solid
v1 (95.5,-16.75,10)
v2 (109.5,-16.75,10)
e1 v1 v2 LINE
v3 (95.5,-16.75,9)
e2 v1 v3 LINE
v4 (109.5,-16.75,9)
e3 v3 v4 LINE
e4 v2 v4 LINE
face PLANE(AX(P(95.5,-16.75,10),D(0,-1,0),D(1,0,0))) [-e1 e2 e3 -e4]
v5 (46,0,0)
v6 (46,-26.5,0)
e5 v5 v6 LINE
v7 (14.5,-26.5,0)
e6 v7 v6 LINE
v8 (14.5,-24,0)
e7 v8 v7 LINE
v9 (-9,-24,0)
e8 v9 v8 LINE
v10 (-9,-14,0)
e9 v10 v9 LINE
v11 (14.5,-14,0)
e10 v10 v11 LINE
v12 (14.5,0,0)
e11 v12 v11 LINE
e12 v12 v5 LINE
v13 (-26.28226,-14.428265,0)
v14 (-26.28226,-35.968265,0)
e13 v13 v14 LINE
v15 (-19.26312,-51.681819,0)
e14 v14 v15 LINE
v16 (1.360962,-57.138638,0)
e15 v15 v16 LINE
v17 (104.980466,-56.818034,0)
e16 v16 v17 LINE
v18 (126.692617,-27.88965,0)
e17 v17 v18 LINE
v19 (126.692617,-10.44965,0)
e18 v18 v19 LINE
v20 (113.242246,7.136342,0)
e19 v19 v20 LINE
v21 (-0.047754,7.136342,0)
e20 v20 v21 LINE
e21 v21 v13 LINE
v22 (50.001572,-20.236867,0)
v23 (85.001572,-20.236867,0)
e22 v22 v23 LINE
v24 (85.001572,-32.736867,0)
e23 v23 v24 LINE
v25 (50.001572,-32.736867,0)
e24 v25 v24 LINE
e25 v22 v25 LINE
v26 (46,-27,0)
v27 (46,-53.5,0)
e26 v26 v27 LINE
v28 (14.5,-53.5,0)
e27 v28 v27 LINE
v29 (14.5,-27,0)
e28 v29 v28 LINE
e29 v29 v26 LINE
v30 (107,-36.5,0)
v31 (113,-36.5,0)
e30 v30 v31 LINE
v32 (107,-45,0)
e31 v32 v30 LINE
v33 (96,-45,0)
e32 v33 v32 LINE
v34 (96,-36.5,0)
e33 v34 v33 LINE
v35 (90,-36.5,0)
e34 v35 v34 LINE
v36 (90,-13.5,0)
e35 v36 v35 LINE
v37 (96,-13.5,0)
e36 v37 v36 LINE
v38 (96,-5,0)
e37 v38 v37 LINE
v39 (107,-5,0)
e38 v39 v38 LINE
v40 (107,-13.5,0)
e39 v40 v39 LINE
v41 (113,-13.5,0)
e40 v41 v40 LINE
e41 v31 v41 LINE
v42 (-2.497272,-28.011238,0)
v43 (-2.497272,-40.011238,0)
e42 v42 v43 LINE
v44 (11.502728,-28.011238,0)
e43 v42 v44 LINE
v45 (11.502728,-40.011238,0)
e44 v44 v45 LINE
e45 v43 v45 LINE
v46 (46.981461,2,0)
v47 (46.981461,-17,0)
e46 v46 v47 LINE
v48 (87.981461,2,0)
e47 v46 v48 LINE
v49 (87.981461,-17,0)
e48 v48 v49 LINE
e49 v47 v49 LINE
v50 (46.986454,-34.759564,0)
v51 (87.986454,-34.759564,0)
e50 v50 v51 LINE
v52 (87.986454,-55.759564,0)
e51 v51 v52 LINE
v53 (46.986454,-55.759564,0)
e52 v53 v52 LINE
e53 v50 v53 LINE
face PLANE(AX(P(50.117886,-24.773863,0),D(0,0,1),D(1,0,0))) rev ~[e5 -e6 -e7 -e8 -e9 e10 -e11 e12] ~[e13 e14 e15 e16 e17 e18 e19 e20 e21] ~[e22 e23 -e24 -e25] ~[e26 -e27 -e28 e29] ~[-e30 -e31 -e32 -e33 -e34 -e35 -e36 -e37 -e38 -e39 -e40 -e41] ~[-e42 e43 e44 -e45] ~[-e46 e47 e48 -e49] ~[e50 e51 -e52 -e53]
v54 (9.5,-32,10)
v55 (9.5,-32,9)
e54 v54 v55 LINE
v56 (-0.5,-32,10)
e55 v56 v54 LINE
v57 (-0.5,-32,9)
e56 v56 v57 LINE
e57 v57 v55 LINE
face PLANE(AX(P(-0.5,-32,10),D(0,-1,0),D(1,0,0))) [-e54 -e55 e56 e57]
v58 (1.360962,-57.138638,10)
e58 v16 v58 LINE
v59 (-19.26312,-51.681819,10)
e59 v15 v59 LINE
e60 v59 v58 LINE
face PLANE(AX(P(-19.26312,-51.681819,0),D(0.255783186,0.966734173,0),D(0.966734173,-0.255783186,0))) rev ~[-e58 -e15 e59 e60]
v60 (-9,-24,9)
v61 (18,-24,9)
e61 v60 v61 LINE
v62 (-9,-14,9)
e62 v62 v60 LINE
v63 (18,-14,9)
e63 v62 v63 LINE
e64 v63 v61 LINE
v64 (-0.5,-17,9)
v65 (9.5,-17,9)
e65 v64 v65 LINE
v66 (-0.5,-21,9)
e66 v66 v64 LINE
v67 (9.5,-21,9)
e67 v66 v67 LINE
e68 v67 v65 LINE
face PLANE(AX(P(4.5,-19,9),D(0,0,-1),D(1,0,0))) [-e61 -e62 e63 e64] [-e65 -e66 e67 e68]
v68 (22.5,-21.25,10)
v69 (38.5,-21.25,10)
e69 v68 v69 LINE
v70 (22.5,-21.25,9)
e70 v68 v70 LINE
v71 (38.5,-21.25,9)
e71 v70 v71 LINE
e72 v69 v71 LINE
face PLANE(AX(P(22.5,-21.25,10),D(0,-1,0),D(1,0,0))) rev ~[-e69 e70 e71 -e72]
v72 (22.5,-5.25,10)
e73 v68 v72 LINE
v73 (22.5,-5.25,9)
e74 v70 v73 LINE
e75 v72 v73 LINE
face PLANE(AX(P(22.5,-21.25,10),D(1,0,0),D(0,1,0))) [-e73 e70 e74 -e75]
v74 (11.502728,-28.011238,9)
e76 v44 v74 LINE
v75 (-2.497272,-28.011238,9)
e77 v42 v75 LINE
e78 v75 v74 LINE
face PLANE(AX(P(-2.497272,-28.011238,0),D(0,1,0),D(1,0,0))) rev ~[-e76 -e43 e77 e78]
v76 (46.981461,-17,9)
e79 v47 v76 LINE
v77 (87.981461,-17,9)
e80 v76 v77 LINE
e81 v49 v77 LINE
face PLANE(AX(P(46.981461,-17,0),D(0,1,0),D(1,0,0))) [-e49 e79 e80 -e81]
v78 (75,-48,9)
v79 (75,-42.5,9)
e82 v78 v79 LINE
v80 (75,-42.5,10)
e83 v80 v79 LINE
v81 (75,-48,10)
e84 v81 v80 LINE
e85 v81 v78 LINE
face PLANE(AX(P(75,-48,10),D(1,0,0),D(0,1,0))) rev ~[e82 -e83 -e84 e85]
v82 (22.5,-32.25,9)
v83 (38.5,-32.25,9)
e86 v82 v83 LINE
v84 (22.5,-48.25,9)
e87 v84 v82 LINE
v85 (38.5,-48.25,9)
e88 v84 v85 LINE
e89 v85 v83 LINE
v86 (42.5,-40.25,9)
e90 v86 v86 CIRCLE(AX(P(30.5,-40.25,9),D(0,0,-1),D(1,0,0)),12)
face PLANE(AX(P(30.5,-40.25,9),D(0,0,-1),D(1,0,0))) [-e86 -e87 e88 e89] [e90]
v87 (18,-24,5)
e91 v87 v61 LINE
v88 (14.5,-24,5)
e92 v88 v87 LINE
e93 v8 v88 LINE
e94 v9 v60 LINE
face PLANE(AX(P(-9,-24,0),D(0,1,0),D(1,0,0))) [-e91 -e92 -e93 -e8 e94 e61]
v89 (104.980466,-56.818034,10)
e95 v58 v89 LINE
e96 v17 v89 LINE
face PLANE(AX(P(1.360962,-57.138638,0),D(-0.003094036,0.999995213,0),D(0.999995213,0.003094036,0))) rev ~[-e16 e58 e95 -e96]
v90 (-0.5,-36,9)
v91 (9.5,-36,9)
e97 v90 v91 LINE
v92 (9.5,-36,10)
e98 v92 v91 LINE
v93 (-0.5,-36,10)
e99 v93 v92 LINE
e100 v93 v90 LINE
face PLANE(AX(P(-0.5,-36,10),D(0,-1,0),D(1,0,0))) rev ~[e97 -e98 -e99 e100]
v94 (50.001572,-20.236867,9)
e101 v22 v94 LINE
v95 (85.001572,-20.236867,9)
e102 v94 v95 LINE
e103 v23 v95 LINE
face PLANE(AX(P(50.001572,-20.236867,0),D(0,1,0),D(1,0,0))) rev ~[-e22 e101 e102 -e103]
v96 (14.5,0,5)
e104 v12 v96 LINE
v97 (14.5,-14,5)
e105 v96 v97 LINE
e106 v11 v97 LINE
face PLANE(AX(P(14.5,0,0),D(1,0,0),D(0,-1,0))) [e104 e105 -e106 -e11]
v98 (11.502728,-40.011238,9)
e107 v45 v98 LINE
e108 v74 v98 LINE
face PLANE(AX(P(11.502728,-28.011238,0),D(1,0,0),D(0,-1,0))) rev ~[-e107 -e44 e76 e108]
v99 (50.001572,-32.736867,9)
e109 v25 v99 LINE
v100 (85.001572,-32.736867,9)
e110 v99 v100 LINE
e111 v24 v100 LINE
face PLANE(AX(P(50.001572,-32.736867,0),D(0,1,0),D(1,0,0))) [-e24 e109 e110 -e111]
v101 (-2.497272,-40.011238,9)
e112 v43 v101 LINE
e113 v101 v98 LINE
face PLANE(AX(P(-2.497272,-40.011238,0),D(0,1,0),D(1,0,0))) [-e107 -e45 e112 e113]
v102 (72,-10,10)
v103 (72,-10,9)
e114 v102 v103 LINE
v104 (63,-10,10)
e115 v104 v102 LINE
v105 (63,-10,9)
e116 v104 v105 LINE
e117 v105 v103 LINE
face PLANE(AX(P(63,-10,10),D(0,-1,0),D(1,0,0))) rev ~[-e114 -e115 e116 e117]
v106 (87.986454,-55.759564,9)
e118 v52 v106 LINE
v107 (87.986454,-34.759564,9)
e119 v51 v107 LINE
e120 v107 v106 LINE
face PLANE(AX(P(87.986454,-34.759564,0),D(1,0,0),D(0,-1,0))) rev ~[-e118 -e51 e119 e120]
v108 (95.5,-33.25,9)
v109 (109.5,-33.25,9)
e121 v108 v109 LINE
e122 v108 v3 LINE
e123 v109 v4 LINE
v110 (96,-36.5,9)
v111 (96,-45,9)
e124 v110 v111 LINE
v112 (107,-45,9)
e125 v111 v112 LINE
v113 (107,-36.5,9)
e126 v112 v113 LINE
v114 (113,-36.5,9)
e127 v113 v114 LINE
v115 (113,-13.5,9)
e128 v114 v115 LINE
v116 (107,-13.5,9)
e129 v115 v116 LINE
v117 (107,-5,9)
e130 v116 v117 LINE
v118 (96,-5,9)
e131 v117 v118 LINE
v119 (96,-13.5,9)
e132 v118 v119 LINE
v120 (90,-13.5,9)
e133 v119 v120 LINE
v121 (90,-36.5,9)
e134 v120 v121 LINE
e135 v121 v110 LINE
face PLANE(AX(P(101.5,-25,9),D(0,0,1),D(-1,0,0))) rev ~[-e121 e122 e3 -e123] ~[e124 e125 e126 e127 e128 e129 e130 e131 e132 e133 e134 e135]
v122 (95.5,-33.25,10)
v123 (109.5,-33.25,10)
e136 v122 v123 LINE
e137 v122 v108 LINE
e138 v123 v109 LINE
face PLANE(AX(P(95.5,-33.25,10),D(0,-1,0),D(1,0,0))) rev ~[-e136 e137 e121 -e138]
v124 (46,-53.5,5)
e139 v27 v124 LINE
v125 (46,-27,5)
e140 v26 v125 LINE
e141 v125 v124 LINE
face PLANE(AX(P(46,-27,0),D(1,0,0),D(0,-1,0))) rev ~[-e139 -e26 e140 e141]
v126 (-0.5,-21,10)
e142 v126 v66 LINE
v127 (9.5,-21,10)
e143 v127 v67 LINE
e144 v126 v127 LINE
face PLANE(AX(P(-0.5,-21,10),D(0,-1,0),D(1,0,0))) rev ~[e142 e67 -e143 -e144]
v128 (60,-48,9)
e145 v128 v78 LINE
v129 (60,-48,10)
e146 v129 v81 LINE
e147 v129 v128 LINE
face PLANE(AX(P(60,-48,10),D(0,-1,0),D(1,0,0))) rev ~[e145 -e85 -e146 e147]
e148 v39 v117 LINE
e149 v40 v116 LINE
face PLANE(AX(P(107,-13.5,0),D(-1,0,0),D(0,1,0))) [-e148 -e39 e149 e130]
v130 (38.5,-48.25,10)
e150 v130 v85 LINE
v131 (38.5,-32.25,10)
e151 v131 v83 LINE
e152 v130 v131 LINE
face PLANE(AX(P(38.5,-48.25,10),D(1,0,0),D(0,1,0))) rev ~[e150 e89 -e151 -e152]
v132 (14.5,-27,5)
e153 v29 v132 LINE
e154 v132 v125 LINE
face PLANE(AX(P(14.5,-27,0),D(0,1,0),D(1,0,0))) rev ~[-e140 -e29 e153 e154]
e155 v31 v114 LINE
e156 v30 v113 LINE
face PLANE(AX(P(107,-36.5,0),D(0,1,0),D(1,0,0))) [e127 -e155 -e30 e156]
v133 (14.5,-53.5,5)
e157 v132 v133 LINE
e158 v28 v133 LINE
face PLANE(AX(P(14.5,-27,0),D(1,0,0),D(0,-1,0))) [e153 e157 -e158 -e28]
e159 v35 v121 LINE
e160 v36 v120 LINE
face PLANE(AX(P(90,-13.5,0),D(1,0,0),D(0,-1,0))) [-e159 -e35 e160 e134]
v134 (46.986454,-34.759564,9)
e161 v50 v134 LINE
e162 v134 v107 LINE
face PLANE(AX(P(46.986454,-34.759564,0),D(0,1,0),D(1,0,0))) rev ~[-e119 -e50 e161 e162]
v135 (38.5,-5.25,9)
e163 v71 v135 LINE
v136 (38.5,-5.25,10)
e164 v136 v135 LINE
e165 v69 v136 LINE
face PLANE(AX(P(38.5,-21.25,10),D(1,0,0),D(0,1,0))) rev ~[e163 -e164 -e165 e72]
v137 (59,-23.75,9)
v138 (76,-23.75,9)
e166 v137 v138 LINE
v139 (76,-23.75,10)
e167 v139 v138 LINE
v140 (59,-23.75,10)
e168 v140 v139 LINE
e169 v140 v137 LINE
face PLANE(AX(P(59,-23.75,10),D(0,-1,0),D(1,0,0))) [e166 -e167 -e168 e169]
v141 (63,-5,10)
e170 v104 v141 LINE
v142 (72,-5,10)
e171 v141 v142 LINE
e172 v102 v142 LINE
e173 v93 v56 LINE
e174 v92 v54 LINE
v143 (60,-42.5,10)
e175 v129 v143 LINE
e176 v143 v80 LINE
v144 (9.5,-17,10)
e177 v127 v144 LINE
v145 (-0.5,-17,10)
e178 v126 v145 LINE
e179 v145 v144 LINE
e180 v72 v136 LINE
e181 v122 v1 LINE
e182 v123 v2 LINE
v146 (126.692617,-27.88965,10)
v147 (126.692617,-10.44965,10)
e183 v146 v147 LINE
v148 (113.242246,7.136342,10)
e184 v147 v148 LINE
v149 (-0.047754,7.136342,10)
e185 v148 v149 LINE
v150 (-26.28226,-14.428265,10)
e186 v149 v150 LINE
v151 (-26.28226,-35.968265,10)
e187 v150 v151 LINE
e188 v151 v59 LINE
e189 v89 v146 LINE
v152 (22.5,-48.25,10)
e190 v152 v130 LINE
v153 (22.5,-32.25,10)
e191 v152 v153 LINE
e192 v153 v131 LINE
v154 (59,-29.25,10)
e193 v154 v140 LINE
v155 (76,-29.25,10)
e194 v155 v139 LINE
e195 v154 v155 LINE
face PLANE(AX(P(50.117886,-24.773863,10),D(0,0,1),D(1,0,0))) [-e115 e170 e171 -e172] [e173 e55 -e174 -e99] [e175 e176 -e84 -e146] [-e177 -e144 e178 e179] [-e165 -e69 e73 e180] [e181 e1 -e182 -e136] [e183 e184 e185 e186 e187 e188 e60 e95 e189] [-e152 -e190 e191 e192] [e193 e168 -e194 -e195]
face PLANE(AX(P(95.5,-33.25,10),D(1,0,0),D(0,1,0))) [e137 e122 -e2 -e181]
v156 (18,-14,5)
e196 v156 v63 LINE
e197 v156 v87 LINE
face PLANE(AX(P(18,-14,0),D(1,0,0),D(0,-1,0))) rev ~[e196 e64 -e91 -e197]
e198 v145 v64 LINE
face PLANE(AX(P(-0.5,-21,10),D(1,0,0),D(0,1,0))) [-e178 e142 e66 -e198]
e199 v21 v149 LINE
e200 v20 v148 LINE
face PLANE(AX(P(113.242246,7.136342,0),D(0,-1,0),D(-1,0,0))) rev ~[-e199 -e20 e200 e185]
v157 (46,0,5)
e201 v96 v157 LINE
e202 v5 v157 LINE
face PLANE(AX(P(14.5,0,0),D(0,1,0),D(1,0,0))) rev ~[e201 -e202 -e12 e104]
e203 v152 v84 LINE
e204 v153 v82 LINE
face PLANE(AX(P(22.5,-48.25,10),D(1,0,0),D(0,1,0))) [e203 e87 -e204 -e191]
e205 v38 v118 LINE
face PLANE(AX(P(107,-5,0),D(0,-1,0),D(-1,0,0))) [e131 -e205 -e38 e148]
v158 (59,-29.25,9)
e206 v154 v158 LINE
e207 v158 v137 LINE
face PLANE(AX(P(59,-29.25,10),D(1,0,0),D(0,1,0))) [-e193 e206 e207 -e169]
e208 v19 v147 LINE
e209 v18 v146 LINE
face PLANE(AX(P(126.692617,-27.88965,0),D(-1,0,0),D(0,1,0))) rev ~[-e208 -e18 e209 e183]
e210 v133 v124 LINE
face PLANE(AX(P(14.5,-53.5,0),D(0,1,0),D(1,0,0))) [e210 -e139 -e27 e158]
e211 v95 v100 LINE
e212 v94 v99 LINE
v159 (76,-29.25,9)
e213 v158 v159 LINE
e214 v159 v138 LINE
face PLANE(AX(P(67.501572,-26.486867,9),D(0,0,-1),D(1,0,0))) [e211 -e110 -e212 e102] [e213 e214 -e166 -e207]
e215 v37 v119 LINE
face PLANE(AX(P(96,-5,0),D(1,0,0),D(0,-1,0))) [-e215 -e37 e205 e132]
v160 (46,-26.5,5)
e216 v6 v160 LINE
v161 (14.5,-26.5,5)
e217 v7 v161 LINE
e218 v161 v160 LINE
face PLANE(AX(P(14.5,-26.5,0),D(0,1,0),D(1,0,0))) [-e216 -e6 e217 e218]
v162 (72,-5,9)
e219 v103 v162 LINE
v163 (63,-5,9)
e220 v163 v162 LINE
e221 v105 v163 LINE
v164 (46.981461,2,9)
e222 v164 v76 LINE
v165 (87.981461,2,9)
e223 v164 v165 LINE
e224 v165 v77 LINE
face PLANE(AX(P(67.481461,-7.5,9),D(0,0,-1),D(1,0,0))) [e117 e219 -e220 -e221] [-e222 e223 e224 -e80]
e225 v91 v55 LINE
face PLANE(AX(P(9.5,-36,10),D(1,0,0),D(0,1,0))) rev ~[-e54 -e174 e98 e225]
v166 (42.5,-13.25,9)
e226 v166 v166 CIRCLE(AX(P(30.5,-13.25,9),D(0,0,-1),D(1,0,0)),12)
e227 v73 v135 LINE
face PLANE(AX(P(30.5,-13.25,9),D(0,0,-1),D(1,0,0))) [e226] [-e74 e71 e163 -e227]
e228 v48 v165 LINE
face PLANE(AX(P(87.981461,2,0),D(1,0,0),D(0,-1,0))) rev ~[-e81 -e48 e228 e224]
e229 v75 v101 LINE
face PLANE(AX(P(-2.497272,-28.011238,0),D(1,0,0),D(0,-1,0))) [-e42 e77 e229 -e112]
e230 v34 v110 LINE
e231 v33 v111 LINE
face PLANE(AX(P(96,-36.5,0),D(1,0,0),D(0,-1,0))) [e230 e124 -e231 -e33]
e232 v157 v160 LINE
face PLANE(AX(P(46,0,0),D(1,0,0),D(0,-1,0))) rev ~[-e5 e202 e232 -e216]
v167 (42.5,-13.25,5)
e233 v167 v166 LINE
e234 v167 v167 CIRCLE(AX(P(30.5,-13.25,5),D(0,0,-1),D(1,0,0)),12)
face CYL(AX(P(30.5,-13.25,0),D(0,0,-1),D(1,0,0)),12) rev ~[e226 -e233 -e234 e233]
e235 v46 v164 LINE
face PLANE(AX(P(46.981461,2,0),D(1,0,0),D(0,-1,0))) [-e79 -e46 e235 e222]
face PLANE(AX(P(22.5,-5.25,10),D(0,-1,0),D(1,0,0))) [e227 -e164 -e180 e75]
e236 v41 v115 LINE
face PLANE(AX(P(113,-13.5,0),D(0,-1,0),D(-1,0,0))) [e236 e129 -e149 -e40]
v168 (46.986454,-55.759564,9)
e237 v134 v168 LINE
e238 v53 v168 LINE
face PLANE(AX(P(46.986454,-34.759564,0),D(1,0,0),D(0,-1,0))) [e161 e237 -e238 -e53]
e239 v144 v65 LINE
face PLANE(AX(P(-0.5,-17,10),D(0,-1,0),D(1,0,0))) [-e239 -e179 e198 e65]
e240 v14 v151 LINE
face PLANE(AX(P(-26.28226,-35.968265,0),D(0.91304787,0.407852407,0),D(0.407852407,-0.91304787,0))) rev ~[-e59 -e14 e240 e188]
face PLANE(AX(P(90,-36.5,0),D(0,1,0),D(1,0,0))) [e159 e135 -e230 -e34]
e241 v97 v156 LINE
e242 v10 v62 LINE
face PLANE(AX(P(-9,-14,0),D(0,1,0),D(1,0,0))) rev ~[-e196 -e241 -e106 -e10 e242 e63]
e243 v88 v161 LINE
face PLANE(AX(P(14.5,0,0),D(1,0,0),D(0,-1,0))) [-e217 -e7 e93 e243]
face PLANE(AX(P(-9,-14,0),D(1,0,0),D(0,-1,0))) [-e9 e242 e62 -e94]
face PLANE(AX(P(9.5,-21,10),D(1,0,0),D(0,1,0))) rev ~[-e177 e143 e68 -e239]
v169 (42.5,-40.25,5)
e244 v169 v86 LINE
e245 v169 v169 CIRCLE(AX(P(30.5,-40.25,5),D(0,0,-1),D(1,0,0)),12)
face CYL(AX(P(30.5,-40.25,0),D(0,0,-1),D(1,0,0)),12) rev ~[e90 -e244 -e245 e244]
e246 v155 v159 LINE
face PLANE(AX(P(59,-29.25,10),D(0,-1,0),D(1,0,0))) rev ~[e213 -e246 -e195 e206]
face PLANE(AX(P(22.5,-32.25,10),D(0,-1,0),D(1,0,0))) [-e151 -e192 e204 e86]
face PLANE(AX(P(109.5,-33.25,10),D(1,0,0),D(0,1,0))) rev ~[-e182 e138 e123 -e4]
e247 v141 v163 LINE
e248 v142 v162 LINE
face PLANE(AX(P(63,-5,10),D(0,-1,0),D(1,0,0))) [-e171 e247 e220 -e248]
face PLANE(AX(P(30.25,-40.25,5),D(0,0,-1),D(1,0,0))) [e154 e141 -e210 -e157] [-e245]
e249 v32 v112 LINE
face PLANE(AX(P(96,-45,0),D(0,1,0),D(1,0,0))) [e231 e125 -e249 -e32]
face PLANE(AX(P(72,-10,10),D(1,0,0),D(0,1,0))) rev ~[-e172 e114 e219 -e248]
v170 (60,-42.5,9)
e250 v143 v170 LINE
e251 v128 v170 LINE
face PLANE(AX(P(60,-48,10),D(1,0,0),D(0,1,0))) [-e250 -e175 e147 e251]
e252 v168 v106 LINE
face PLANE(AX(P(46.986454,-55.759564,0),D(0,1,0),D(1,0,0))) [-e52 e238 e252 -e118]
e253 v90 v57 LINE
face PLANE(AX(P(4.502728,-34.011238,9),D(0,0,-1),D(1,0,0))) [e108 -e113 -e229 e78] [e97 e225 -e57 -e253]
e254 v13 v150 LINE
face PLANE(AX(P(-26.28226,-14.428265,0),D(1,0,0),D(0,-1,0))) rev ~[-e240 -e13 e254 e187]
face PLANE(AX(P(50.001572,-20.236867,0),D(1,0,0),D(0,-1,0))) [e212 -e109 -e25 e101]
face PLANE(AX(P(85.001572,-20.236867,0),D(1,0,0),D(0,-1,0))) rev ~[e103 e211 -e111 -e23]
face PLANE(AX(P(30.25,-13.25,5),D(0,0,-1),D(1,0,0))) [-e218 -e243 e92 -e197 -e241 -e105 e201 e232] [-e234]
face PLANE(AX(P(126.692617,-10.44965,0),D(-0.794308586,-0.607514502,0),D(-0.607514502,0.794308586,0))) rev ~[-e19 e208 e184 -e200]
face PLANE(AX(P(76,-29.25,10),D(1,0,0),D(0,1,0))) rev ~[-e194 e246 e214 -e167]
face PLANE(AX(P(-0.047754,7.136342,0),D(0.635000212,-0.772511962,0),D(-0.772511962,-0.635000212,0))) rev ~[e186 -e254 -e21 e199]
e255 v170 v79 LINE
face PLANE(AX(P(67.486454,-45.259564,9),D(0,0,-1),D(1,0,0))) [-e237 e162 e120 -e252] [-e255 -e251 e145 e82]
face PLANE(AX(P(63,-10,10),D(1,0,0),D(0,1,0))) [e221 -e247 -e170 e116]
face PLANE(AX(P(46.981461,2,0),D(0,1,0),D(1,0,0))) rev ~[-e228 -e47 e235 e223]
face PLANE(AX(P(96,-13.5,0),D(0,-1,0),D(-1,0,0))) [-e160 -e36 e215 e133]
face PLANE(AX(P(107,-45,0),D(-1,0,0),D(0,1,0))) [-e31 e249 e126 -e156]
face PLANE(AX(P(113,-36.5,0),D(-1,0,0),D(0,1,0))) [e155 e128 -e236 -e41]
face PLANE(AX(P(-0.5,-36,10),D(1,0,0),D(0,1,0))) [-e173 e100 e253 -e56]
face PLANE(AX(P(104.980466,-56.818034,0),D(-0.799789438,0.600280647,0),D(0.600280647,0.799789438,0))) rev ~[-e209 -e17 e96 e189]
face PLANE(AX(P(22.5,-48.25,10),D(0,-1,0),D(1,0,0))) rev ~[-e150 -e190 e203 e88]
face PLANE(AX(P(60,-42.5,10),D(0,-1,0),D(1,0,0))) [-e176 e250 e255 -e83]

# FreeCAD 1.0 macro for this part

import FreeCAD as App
import Part
import Sketcher
from FreeCAD import Vector
Q = App.Units.Quantity

doc = App.newDocument("Part")
params = doc.addObject("Spreadsheet::Sheet", "Params")
for row, (alias, value) in enumerate([
    ("sketch1_width", "113.29 mm"),
    ("sketch1_height", "21.54 mm"),
    ("sketch1_height2", "17.44 mm"),
    ("sketch1_length", "33.96 mm"),
    ("sketch1_length2", "17.21 mm"),
    ("pad1_length", "10 mm"),
    ("sketch2_width", "10 mm"),
    ("sketch2_width2", "15 mm"),
    ("sketch2_width3", "9 mm"),
    ("sketch2_width4", "14 mm"),
    ("sketch2_width5", "16 mm"),
    ("pocket1_length", "1 mm"),
    ("sketch3_diameter", "24 mm"),
    ("pocket2_length", "9 mm"),
    ("sketch4_width", "41 mm"),
    ("sketch4_height", "19 mm"),
    ("pocket3_length", "9 mm"),
    ("sketch5_width", "35 mm"),
    ("sketch5_height", "12.5 mm"),
    ("pocket4_length", "9 mm"),
    ("sketch6_width", "41 mm"),
    ("sketch6_height", "21 mm"),
    ("pocket5_length", "9 mm"),
    ("sketch7_width", "14 mm"),
    ("sketch7_height", "12 mm"),
    ("pocket6_length", "9 mm"),
    ("sketch8_width", "6 mm"),
    ("sketch8_width2", "11 mm"),
    ("sketch8_height", "23 mm"),
    ("sketch8_height2", "8.5 mm"),
    ("pocket7_length", "9 mm"),
    ("sketch9_width", "31.5 mm"),
    ("sketch9_height", "26.5 mm"),
    ("pocket8_length", "5 mm"),
    ("sketch10_width", "27 mm"),
    ("sketch10_height", "10 mm"),
    ("pocket9_length", "9 mm"),
], start=1):
    params.set(f"A{row}", alias)
    params.set(f"B{row}", "=" + value)
    params.setAlias(f"B{row}", alias)

body = doc.addObject("PartDesign::Body", "Body")

sketch1 = body.newObject("Sketcher::SketchObject", "Sketch")
sketch1.AttachmentSupport = (doc.getObject("XY_Plane"), [""])
sketch1.MapMode = "FlatFace"
sketch1.addGeometry([
    Part.LineSegment(Vector(113, 7, 0), Vector(0, 7, 0)),
    Part.LineSegment(Vector(0, 7, 0), Vector(-26, -14, 0)),
    Part.LineSegment(Vector(-26, -14, 0), Vector(-26, -36, 0)),
    Part.LineSegment(Vector(-26, -36, 0), Vector(-19, -52, 0)),
    Part.LineSegment(Vector(-19, -52, 0), Vector(1, -57, 0)),
    Part.LineSegment(Vector(1, -57, 0), Vector(105, -57, 0)),
    Part.LineSegment(Vector(105, -57, 0), Vector(127, -28, 0)),
    Part.LineSegment(Vector(127, -28, 0), Vector(127, -10, 0)),
    Part.LineSegment(Vector(127, -10, 0), Vector(113, 7, 0)),
], False)
sketch1.addConstraint([
    Sketcher.Constraint("Coincident", 0, 2, 1, 1),
    Sketcher.Constraint("Coincident", 1, 2, 2, 1),
    Sketcher.Constraint("Coincident", 2, 2, 3, 1),
    Sketcher.Constraint("Coincident", 3, 2, 4, 1),
    Sketcher.Constraint("Coincident", 4, 2, 5, 1),
    Sketcher.Constraint("Coincident", 5, 2, 6, 1),
    Sketcher.Constraint("Coincident", 6, 2, 7, 1),
    Sketcher.Constraint("Coincident", 7, 2, 8, 1),
    Sketcher.Constraint("Coincident", 8, 2, 0, 1),
    Sketcher.Constraint("Horizontal", 0),
    Sketcher.Constraint("Vertical", 2),
    Sketcher.Constraint("Vertical", 7),
    Sketcher.Constraint("DistanceX", 0, 2, 0, 1, 113.29),
    Sketcher.Constraint("DistanceY", 2, 2, 2, 1, 21.54),
    Sketcher.Constraint("DistanceY", 7, 1, 7, 2, 17.44),
    Sketcher.Constraint("Angle", 1, Q("-140.58 deg")),
    Sketcher.Constraint("Angle", 3, Q("-65.930002 deg")),
    Sketcher.Constraint("Angle", 4, Q("-14.819998 deg")),
    Sketcher.Constraint("Angle", 6, Q("53.11 deg")),
    Sketcher.Constraint("Angle", 8, Q("127.410001 deg")),
    Sketcher.Constraint("Distance", 1, 33.96),
    Sketcher.Constraint("Distance", 3, 17.21),
    Sketcher.Constraint("Distance", 5, 103.62),
    Sketcher.Constraint("Distance", 6, 36.17),
    Sketcher.Constraint("Distance", 8, 22.14),
    Sketcher.Constraint("DistanceX", 1, 2, -1, 1, 26.28226),
    Sketcher.Constraint("DistanceY", 3, 2, -1, 1, 51.681819),
])
sketch1.setExpression("Constraints[12]", "Params.sketch1_width")
sketch1.setExpression("Constraints[13]", "Params.sketch1_height")
sketch1.setExpression("Constraints[14]", "Params.sketch1_height2")
sketch1.setExpression("Constraints[20]", "Params.sketch1_length")
sketch1.setExpression("Constraints[21]", "Params.sketch1_length2")
pad1 = body.newObject("PartDesign::Pad", "Pad")
pad1.Profile = sketch1
pad1.setExpression("Length", "Params.pad1_length")

sketch2 = body.newObject("Sketcher::SketchObject", "Sketch001")
sketch2.AttachmentSupport = (doc.getObject("XY_Plane"), [""])
sketch2.MapMode = "FlatFace"
sketch2.AttachmentOffset = App.Placement(Vector(0, 0, 10), App.Rotation())
sketch2.addGeometry([
    Part.LineSegment(Vector(-0.5, -17, 0), Vector(-0.5, -21, 0)),
    Part.LineSegment(Vector(-0.5, -21, 0), Vector(9.5, -21, 0)),
    Part.LineSegment(Vector(9.5, -21, 0), Vector(9.5, -17, 0)),
    Part.LineSegment(Vector(9.5, -17, 0), Vector(-0.5, -17, 0)),
    Part.LineSegment(Vector(-0.5, -32, 0), Vector(-0.5, -36, 0)),
    Part.LineSegment(Vector(-0.5, -36, 0), Vector(9.5, -36, 0)),
    Part.LineSegment(Vector(9.5, -36, 0), Vector(9.5, -32, 0)),
    Part.LineSegment(Vector(9.5, -32, 0), Vector(-0.5, -32, 0)),
    Part.LineSegment(Vector(60, -42.5, 0), Vector(60, -48, 0)),
    Part.LineSegment(Vector(60, -48, 0), Vector(75, -48, 0)),
    Part.LineSegment(Vector(75, -48, 0), Vector(75, -42.5, 0)),
    Part.LineSegment(Vector(75, -42.5, 0), Vector(60, -42.5, 0)),
    Part.LineSegment(Vector(63, -5, 0), Vector(63, -10, 0)),
    Part.LineSegment(Vector(63, -10, 0), Vector(72, -10, 0)),
    Part.LineSegment(Vector(72, -10, 0), Vector(72, -5, 0)),
    Part.LineSegment(Vector(72, -5, 0), Vector(63, -5, 0)),
    Part.LineSegment(Vector(95.5, -16.8, 0), Vector(95.5, -33.2, 0)),
    Part.LineSegment(Vector(95.5, -33.2, 0), Vector(109.5, -33.2, 0)),
    Part.LineSegment(Vector(109.5, -33.2, 0), Vector(109.5, -16.8, 0)),
    Part.LineSegment(Vector(109.5, -16.8, 0), Vector(95.5, -16.8, 0)),
    Part.LineSegment(Vector(22.5, -5.2, 0), Vector(22.5, -21.2, 0)),
    Part.LineSegment(Vector(22.5, -21.2, 0), Vector(38.5, -21.2, 0)),
    Part.LineSegment(Vector(38.5, -21.2, 0), Vector(38.5, -5.2, 0)),
    Part.LineSegment(Vector(38.5, -5.2, 0), Vector(22.5, -5.2, 0)),
    Part.LineSegment(Vector(22.5, -32.2, 0), Vector(22.5, -48.2, 0)),
    Part.LineSegment(Vector(22.5, -48.2, 0), Vector(38.5, -48.2, 0)),
    Part.LineSegment(Vector(38.5, -48.2, 0), Vector(38.5, -32.2, 0)),
    Part.LineSegment(Vector(38.5, -32.2, 0), Vector(22.5, -32.2, 0)),
    Part.LineSegment(Vector(59, -23.8, 0), Vector(59, -29.2, 0)),
    Part.LineSegment(Vector(59, -29.2, 0), Vector(76, -29.2, 0)),
    Part.LineSegment(Vector(76, -29.2, 0), Vector(76, -23.8, 0)),
    Part.LineSegment(Vector(76, -23.8, 0), Vector(59, -23.8, 0)),
], False)
sketch2.addConstraint([
    Sketcher.Constraint("Coincident", 0, 2, 1, 1),
    Sketcher.Constraint("Coincident", 1, 2, 2, 1),
    Sketcher.Constraint("Coincident", 2, 2, 3, 1),
    Sketcher.Constraint("Coincident", 3, 2, 0, 1),
    Sketcher.Constraint("Coincident", 4, 2, 5, 1),
    Sketcher.Constraint("Coincident", 5, 2, 6, 1),
    Sketcher.Constraint("Coincident", 6, 2, 7, 1),
    Sketcher.Constraint("Coincident", 7, 2, 4, 1),
    Sketcher.Constraint("Coincident", 8, 2, 9, 1),
    Sketcher.Constraint("Coincident", 9, 2, 10, 1),
    Sketcher.Constraint("Coincident", 10, 2, 11, 1),
    Sketcher.Constraint("Coincident", 11, 2, 8, 1),
    Sketcher.Constraint("Coincident", 12, 2, 13, 1),
    Sketcher.Constraint("Coincident", 13, 2, 14, 1),
    Sketcher.Constraint("Coincident", 14, 2, 15, 1),
    Sketcher.Constraint("Coincident", 15, 2, 12, 1),
    Sketcher.Constraint("Coincident", 16, 2, 17, 1),
    Sketcher.Constraint("Coincident", 17, 2, 18, 1),
    Sketcher.Constraint("Coincident", 18, 2, 19, 1),
    Sketcher.Constraint("Coincident", 19, 2, 16, 1),
    Sketcher.Constraint("Coincident", 20, 2, 21, 1),
    Sketcher.Constraint("Coincident", 21, 2, 22, 1),
    Sketcher.Constraint("Coincident", 22, 2, 23, 1),
    Sketcher.Constraint("Coincident", 23, 2, 20, 1),
    Sketcher.Constraint("Coincident", 24, 2, 25, 1),
    Sketcher.Constraint("Coincident", 25, 2, 26, 1),
    Sketcher.Constraint("Coincident", 26, 2, 27, 1),
    Sketcher.Constraint("Coincident", 27, 2, 24, 1),
    Sketcher.Constraint("Coincident", 28, 2, 29, 1),
    Sketcher.Constraint("Coincident", 29, 2, 30, 1),
    Sketcher.Constraint("Coincident", 30, 2, 31, 1),
    Sketcher.Constraint("Coincident", 31, 2, 28, 1),
    Sketcher.Constraint("Vertical", 0),
    Sketcher.Constraint("Horizontal", 1),
    Sketcher.Constraint("Vertical", 2),
    Sketcher.Constraint("Horizontal", 3),
    Sketcher.Constraint("Vertical", 4),
    Sketcher.Constraint("Horizontal", 5),
    Sketcher.Constraint("Vertical", 6),
    Sketcher.Constraint("Horizontal", 7),
    Sketcher.Constraint("Vertical", 8),
    Sketcher.Constraint("Horizontal", 9),
    Sketcher.Constraint("Vertical", 10),
    Sketcher.Constraint("Horizontal", 11),
    Sketcher.Constraint("Vertical", 12),
    Sketcher.Constraint("Horizontal", 13),
    Sketcher.Constraint("Vertical", 14),
    Sketcher.Constraint("Horizontal", 15),
    Sketcher.Constraint("Vertical", 16),
    Sketcher.Constraint("Horizontal", 17),
    Sketcher.Constraint("Vertical", 18),
    Sketcher.Constraint("Horizontal", 19),
    Sketcher.Constraint("Vertical", 20),
    Sketcher.Constraint("Horizontal", 21),
    Sketcher.Constraint("Vertical", 22),
    Sketcher.Constraint("Horizontal", 23),
    Sketcher.Constraint("Vertical", 24),
    Sketcher.Constraint("Horizontal", 25),
    Sketcher.Constraint("Vertical", 26),
    Sketcher.Constraint("Horizontal", 27),
    Sketcher.Constraint("Vertical", 28),
    Sketcher.Constraint("Horizontal", 29),
    Sketcher.Constraint("Vertical", 30),
    Sketcher.Constraint("Horizontal", 31),
    Sketcher.Constraint("Vertical", 3, 2, 4, 2),
    Sketcher.Constraint("Vertical", 2, 2, 5, 2),
    Sketcher.Constraint("Vertical", 23, 2, 24, 2),
    Sketcher.Constraint("Vertical", 22, 2, 25, 2),
    Sketcher.Constraint("Equal", 2, 4),
    Sketcher.Constraint("Equal", 27, 20),
    Sketcher.Constraint("Equal", 22, 24),
    Sketcher.Constraint("Equal", 10, 28),
    Sketcher.Constraint("DistanceX", 1, 1, 1, 2, 10.0),
    Sketcher.Constraint("DistanceX", 9, 1, 9, 2, 15.0),
    Sketcher.Constraint("DistanceX", 13, 1, 13, 2, 9.0),
    Sketcher.Constraint("DistanceX", 17, 1, 17, 2, 14.0),
    Sketcher.Constraint("DistanceX", 21, 1, 21, 2, 16.0),
    Sketcher.Constraint("DistanceX", 29, 1, 29, 2, 17.0),
    Sketcher.Constraint("DistanceY", 0, 2, 0, 1, 4.0),
    Sketcher.Constraint("DistanceY", 12, 2, 12, 1, 5.0),
    Sketcher.Constraint("DistanceY", 8, 2, 8, 1, 5.5),
    Sketcher.Constraint("DistanceY", 16, 2, 16, 1, 16.5),
    Sketcher.Constraint("DistanceY", 0, 2, -1, 1, 21.0),
    Sketcher.Constraint("DistanceY", 4, 2, -1, 1, 36.0),
    Sketcher.Constraint("DistanceX", -1, 1, 8, 2, 60.0),
    Sketcher.Constraint("DistanceY", 8, 2, -1, 1, 48.0),
    Sketcher.Constraint("DistanceX", -1, 1, 12, 2, 63.0),
    Sketcher.Constraint("DistanceY", 12, 2, -1, 1, 10.0),
    Sketcher.Constraint("DistanceX", -1, 1, 28, 2, 59.0),
    Sketcher.Constraint("DistanceX", 1, 2, 20, 2, 13.0),
    Sketcher.Constraint("DistanceY", 24, 2, 20, 2, 27.0),
    Sketcher.Constraint("DistanceY", 26, 2, 28, 2, 3.0),
    Sketcher.Constraint("DistanceY", 16, 2, 29, 2, 4.0),
    Sketcher.Constraint("DistanceX", 0, 2, -1, 1, 0.5),
    Sketcher.Constraint("DistanceX", -1, 1, 16, 2, 95.5),
    Sketcher.Constraint("DistanceY", 16, 2, -1, 1, 33.25),
])
sketch2.setExpression("Constraints[72]", "Params.sketch2_width")
sketch2.setExpression("Constraints[73]", "Params.sketch2_width2")
sketch2.setExpression("Constraints[74]", "Params.sketch2_width3")
sketch2.setExpression("Constraints[75]", "Params.sketch2_width4")
sketch2.setExpression("Constraints[76]", "Params.sketch2_width5")
pocket1 = body.newObject("PartDesign::Pocket", "Pocket")
pocket1.Profile = sketch2
pocket1.setExpression("Length", "Params.pocket1_length")

sketch3 = body.newObject("Sketcher::SketchObject", "Sketch002")
sketch3.AttachmentSupport = (doc.getObject("XY_Plane"), [""])
sketch3.MapMode = "FlatFace"
sketch3.addGeometry([
    Part.Circle(Vector(30, -40, 0), Vector(0, 0, 1), 12),
    Part.Circle(Vector(30, -13, 0), Vector(0, 0, 1), 12),
], False)
sketch3.addConstraint([
    Sketcher.Constraint("Equal", 0, 1),
    Sketcher.Constraint("Vertical", 0, 3, 1, 3),
    Sketcher.Constraint("Diameter", 0, 24.0),
    Sketcher.Constraint("DistanceY", 0, 3, 1, 3, 27.0),
    Sketcher.Constraint("DistanceX", -1, 1, 0, 3, 30.5),
    Sketcher.Constraint("DistanceY", 0, 3, -1, 1, 40.25),
])
sketch3.setExpression("Constraints[2]", "Params.sketch3_diameter")
pocket2 = body.newObject("PartDesign::Pocket", "Pocket001")
pocket2.Profile = sketch3
pocket2.setExpression("Length", "Params.pocket2_length")
pocket2.Reversed = True

sketch4 = body.newObject("Sketcher::SketchObject", "Sketch003")
sketch4.AttachmentSupport = (doc.getObject("XY_Plane"), [""])
sketch4.MapMode = "FlatFace"
sketch4.addGeometry([
    Part.LineSegment(Vector(47, -17, 0), Vector(47, 2, 0)),
    Part.LineSegment(Vector(47, 2, 0), Vector(88, 2, 0)),
    Part.LineSegment(Vector(88, 2, 0), Vector(88, -17, 0)),
    Part.LineSegment(Vector(88, -17, 0), Vector(47, -17, 0)),
], False)
sketch4.addConstraint([
    Sketcher.Constraint("Coincident", 0, 2, 1, 1),
    Sketcher.Constraint("Coincident", 1, 2, 2, 1),
    Sketcher.Constraint("Coincident", 2, 2, 3, 1),
    Sketcher.Constraint("Coincident", 3, 2, 0, 1),
    Sketcher.Constraint("Vertical", 0),
    Sketcher.Constraint("Horizontal", 1),
    Sketcher.Constraint("Vertical", 2),
    Sketcher.Constraint("Horizontal", 3),
    Sketcher.Constraint("DistanceX", 1, 1, 1, 2, 41.0),
    Sketcher.Constraint("DistanceY", 0, 1, 0, 2, 19.0),
    Sketcher.Constraint("DistanceY", -1, 1, 0, 2, 2.0),
    Sketcher.Constraint("DistanceX", -1, 1, 0, 2, 46.981461),
])
sketch4.setExpression("Constraints[8]", "Params.sketch4_width")
sketch4.setExpression("Constraints[9]", "Params.sketch4_height")
pocket3 = body.newObject("PartDesign::Pocket", "Pocket002")
pocket3.Profile = sketch4
pocket3.setExpression("Length", "Params.pocket3_length")
pocket3.Reversed = True

sketch5 = body.newObject("Sketcher::SketchObject", "Sketch004")
sketch5.AttachmentSupport = (doc.getObject("XY_Plane"), [""])
sketch5.MapMode = "FlatFace"
sketch5.addGeometry([
    Part.LineSegment(Vector(50, -33, 0), Vector(50, -20, 0)),
    Part.LineSegment(Vector(50, -20, 0), Vector(85, -20, 0)),
    Part.LineSegment(Vector(85, -20, 0), Vector(85, -33, 0)),
    Part.LineSegment(Vector(85, -33, 0), Vector(50, -33, 0)),
], False)
sketch5.addConstraint([
    Sketcher.Constraint("Coincident", 0, 2, 1, 1),
    Sketcher.Constraint("Coincident", 1, 2, 2, 1),
    Sketcher.Constraint("Coincident", 2, 2, 3, 1),
    Sketcher.Constraint("Coincident", 3, 2, 0, 1),
    Sketcher.Constraint("Vertical", 0),
    Sketcher.Constraint("Horizontal", 1),
    Sketcher.Constraint("Vertical", 2),
    Sketcher.Constraint("Horizontal", 3),
    Sketcher.Constraint("DistanceX", 1, 1, 1, 2, 35.0),
    Sketcher.Constraint("DistanceY", 0, 1, 0, 2, 12.5),
    Sketcher.Constraint("DistanceX", -1, 1, 1, 2, 85.001572),
    Sketcher.Constraint("DistanceY", 0, 2, -1, 1, 20.236867),
])
sketch5.setExpression("Constraints[8]", "Params.sketch5_width")
sketch5.setExpression("Constraints[9]", "Params.sketch5_height")
pocket4 = body.newObject("PartDesign::Pocket", "Pocket003")
pocket4.Profile = sketch5
pocket4.setExpression("Length", "Params.pocket4_length")
pocket4.Reversed = True

sketch6 = body.newObject("Sketcher::SketchObject", "Sketch005")
sketch6.AttachmentSupport = (doc.getObject("XY_Plane"), [""])
sketch6.MapMode = "FlatFace"
sketch6.addGeometry([
    Part.LineSegment(Vector(47, -56, 0), Vector(47, -35, 0)),
    Part.LineSegment(Vector(47, -35, 0), Vector(88, -35, 0)),
    Part.LineSegment(Vector(88, -35, 0), Vector(88, -56, 0)),
    Part.LineSegment(Vector(88, -56, 0), Vector(47, -56, 0)),
], False)
sketch6.addConstraint([
    Sketcher.Constraint("Coincident", 0, 2, 1, 1),
    Sketcher.Constraint("Coincident", 1, 2, 2, 1),
    Sketcher.Constraint("Coincident", 2, 2, 3, 1),
    Sketcher.Constraint("Coincident", 3, 2, 0, 1),
    Sketcher.Constraint("Vertical", 0),
    Sketcher.Constraint("Horizontal", 1),
    Sketcher.Constraint("Vertical", 2),
    Sketcher.Constraint("Horizontal", 3),
    Sketcher.Constraint("DistanceX", 1, 1, 1, 2, 41.0),
    Sketcher.Constraint("DistanceY", 0, 1, 0, 2, 21.0),
    Sketcher.Constraint("DistanceX", -1, 1, 0, 2, 46.986454),
    Sketcher.Constraint("DistanceY", 0, 2, -1, 1, 34.759564),
])
sketch6.setExpression("Constraints[8]", "Params.sketch6_width")
sketch6.setExpression("Constraints[9]", "Params.sketch6_height")
pocket5 = body.newObject("PartDesign::Pocket", "Pocket004")
pocket5.Profile = sketch6
pocket5.setExpression("Length", "Params.pocket5_length")
pocket5.Reversed = True

sketch7 = body.newObject("Sketcher::SketchObject", "Sketch006")
sketch7.AttachmentSupport = (doc.getObject("XY_Plane"), [""])
sketch7.MapMode = "FlatFace"
sketch7.addGeometry([
    Part.LineSegment(Vector(-2, -40, 0), Vector(-2, -28, 0)),
    Part.LineSegment(Vector(-2, -28, 0), Vector(12, -28, 0)),
    Part.LineSegment(Vector(12, -28, 0), Vector(12, -40, 0)),
    Part.LineSegment(Vector(12, -40, 0), Vector(-2, -40, 0)),
], False)
sketch7.addConstraint([
    Sketcher.Constraint("Coincident", 0, 2, 1, 1),
    Sketcher.Constraint("Coincident", 1, 2, 2, 1),
    Sketcher.Constraint("Coincident", 2, 2, 3, 1),
    Sketcher.Constraint("Coincident", 3, 2, 0, 1),
    Sketcher.Constraint("Vertical", 0),
    Sketcher.Constraint("Horizontal", 1),
    Sketcher.Constraint("Vertical", 2),
    Sketcher.Constraint("Horizontal", 3),
    Sketcher.Constraint("DistanceX", 1, 1, 1, 2, 14.0),
    Sketcher.Constraint("DistanceY", 0, 1, 0, 2, 12.0),
    Sketcher.Constraint("DistanceX", 0, 2, -1, 1, 2.497272),
    Sketcher.Constraint("DistanceY", 0, 2, -1, 1, 28.011238),
])
sketch7.setExpression("Constraints[8]", "Params.sketch7_width")
sketch7.setExpression("Constraints[9]", "Params.sketch7_height")
pocket6 = body.newObject("PartDesign::Pocket", "Pocket005")
pocket6.Profile = sketch7
pocket6.setExpression("Length", "Params.pocket6_length")
pocket6.Reversed = True

sketch8 = body.newObject("Sketcher::SketchObject", "Sketch007")
sketch8.AttachmentSupport = (doc.getObject("XY_Plane"), [""])
sketch8.MapMode = "FlatFace"
sketch8.addGeometry([
    Part.LineSegment(Vector(96, -36, 0), Vector(90, -36, 0)),
    Part.LineSegment(Vector(90, -36, 0), Vector(90, -14, 0)),
    Part.LineSegment(Vector(90, -14, 0), Vector(96, -14, 0)),
    Part.LineSegment(Vector(96, -14, 0), Vector(96, -5, 0)),
    Part.LineSegment(Vector(96, -5, 0), Vector(107, -5, 0)),
    Part.LineSegment(Vector(107, -5, 0), Vector(107, -14, 0)),
    Part.LineSegment(Vector(107, -14, 0), Vector(113, -14, 0)),
    Part.LineSegment(Vector(113, -14, 0), Vector(113, -36, 0)),
    Part.LineSegment(Vector(113, -36, 0), Vector(107, -36, 0)),
    Part.LineSegment(Vector(107, -36, 0), Vector(107, -45, 0)),
    Part.LineSegment(Vector(107, -45, 0), Vector(96, -45, 0)),
    Part.LineSegment(Vector(96, -45, 0), Vector(96, -36, 0)),
], False)
sketch8.addConstraint([
    Sketcher.Constraint("Coincident", 0, 2, 1, 1),
    Sketcher.Constraint("Coincident", 1, 2, 2, 1),
    Sketcher.Constraint("Coincident", 2, 2, 3, 1),
    Sketcher.Constraint("Coincident", 3, 2, 4, 1),
    Sketcher.Constraint("Coincident", 4, 2, 5, 1),
    Sketcher.Constraint("Coincident", 5, 2, 6, 1),
    Sketcher.Constraint("Coincident", 6, 2, 7, 1),
    Sketcher.Constraint("Coincident", 7, 2, 8, 1),
    Sketcher.Constraint("Coincident", 8, 2, 9, 1),
    Sketcher.Constraint("Coincident", 9, 2, 10, 1),
    Sketcher.Constraint("Coincident", 10, 2, 11, 1),
    Sketcher.Constraint("Coincident", 11, 2, 0, 1),
    Sketcher.Constraint("Horizontal", 0),
    Sketcher.Constraint("Vertical", 1),
    Sketcher.Constraint("Horizontal", 2),
    Sketcher.Constraint("Vertical", 3),
    Sketcher.Constraint("Horizontal", 4),
    Sketcher.Constraint("Vertical", 5),
    Sketcher.Constraint("Horizontal", 6),
    Sketcher.Constraint("Vertical", 7),
    Sketcher.Constraint("Horizontal", 8),
    Sketcher.Constraint("Vertical", 9),
    Sketcher.Constraint("Horizontal", 10),
    Sketcher.Constraint("Vertical", 11),
    Sketcher.Constraint("Horizontal", 2, 2, 5, 2),
    Sketcher.Constraint("Horizontal", 0, 2, 7, 2),
    Sketcher.Constraint("Vertical", 5, 2, 8, 2),
    Sketcher.Constraint("Vertical", 3, 2, 10, 2),
    Sketcher.Constraint("Equal", 2, 6),
    Sketcher.Constraint("Equal", 5, 9),
    Sketcher.Constraint("DistanceX", 0, 2, 0, 1, 6.0),
    Sketcher.Constraint("DistanceX", 4, 1, 4, 2, 11.0),
    Sketcher.Constraint("DistanceY", 1, 1, 1, 2, 23.0),
    Sketcher.Constraint("DistanceY", 3, 1, 3, 2, 8.5),
    Sketcher.Constraint("DistanceX", -1, 1, 0, 2, 90.0),
    Sketcher.Constraint("DistanceY", 3, 2, -1, 1, 5.0),
])
sketch8.setExpression("Constraints[30]", "Params.sketch8_width")
sketch8.setExpression("Constraints[31]", "Params.sketch8_width2")
sketch8.setExpression("Constraints[32]", "Params.sketch8_height")
sketch8.setExpression("Constraints[33]", "Params.sketch8_height2")
pocket7 = body.newObject("PartDesign::Pocket", "Pocket006")
pocket7.Profile = sketch8
pocket7.setExpression("Length", "Params.pocket7_length")
pocket7.Reversed = True

sketch9 = body.newObject("Sketcher::SketchObject", "Sketch008")
sketch9.AttachmentSupport = (doc.getObject("XY_Plane"), [""])
sketch9.MapMode = "FlatFace"
sketch9.addGeometry([
    Part.LineSegment(Vector(14, -54, 0), Vector(14, -27, 0)),
    Part.LineSegment(Vector(14, -27, 0), Vector(46, -27, 0)),
    Part.LineSegment(Vector(46, -27, 0), Vector(46, -54, 0)),
    Part.LineSegment(Vector(46, -54, 0), Vector(14, -54, 0)),
    Part.LineSegment(Vector(14, -26, 0), Vector(14, 0, 0)),
    Part.LineSegment(Vector(14, 0, 0), Vector(46, 0, 0)),
    Part.LineSegment(Vector(46, 0, 0), Vector(46, -26, 0)),
    Part.LineSegment(Vector(46, -26, 0), Vector(14, -26, 0)),
], False)
sketch9.addConstraint([
    Sketcher.Constraint("Coincident", 0, 2, 1, 1),
    Sketcher.Constraint("Coincident", 1, 2, 2, 1),
    Sketcher.Constraint("Coincident", 2, 2, 3, 1),
    Sketcher.Constraint("Coincident", 3, 2, 0, 1),
    Sketcher.Constraint("Coincident", 4, 2, 5, 1),
    Sketcher.Constraint("Coincident", 5, 2, 6, 1),
    Sketcher.Constraint("Coincident", 6, 2, 7, 1),
    Sketcher.Constraint("Coincident", 7, 2, 4, 1),
    Sketcher.Constraint("Vertical", 0),
    Sketcher.Constraint("Horizontal", 1),
    Sketcher.Constraint("Vertical", 2),
    Sketcher.Constraint("Horizontal", 3),
    Sketcher.Constraint("Vertical", 4),
    Sketcher.Constraint("Horizontal", 5),
    Sketcher.Constraint("Vertical", 6),
    Sketcher.Constraint("Horizontal", 7),
    Sketcher.Constraint("PointOnObject", 4, 2, -1),
    Sketcher.Constraint("Vertical", 3, 2, 4, 2),
    Sketcher.Constraint("Vertical", 2, 2, 5, 2),
    Sketcher.Constraint("Equal", 2, 4),
    Sketcher.Constraint("DistanceX", 1, 1, 1, 2, 31.5),
    Sketcher.Constraint("DistanceY", 0, 1, 0, 2, 26.5),
    Sketcher.Constraint("DistanceY", 0, 2, -1, 1, 27.0),
    Sketcher.Constraint("DistanceX", -1, 1, 1, 2, 46.0),
])
sketch9.setExpression("Constraints[20]", "Params.sketch9_width")
sketch9.setExpression("Constraints[21]", "Params.sketch9_height")
pocket8 = body.newObject("PartDesign::Pocket", "Pocket007")
pocket8.Profile = sketch9
pocket8.setExpression("Length", "Params.pocket8_length")
pocket8.Reversed = True

sketch10 = body.newObject("Sketcher::SketchObject", "Sketch009")
sketch10.AttachmentSupport = (doc.getObject("XY_Plane"), [""])
sketch10.MapMode = "FlatFace"
sketch10.addGeometry([
    Part.LineSegment(Vector(-9, -24, 0), Vector(-9, -14, 0)),
    Part.LineSegment(Vector(-9, -14, 0), Vector(18, -14, 0)),
    Part.LineSegment(Vector(18, -14, 0), Vector(18, -24, 0)),
    Part.LineSegment(Vector(18, -24, 0), Vector(-9, -24, 0)),
], False)
sketch10.addConstraint([
    Sketcher.Constraint("Coincident", 0, 2, 1, 1),
    Sketcher.Constraint("Coincident", 1, 2, 2, 1),
    Sketcher.Constraint("Coincident", 2, 2, 3, 1),
    Sketcher.Constraint("Coincident", 3, 2, 0, 1),
    Sketcher.Constraint("Vertical", 0),
    Sketcher.Constraint("Horizontal", 1),
    Sketcher.Constraint("Vertical", 2),
    Sketcher.Constraint("Horizontal", 3),
    Sketcher.Constraint("DistanceX", 1, 1, 1, 2, 27.0),
    Sketcher.Constraint("DistanceY", 0, 1, 0, 2, 10.0),
    Sketcher.Constraint("DistanceX", 0, 2, -1, 1, 9.0),
    Sketcher.Constraint("DistanceY", 0, 2, -1, 1, 14.0),
])
sketch10.setExpression("Constraints[8]", "Params.sketch10_width")
sketch10.setExpression("Constraints[9]", "Params.sketch10_height")
pocket9 = body.newObject("PartDesign::Pocket", "Pocket008")
pocket9.Profile = sketch10
pocket9.setExpression("Length", "Params.pocket9_length")
pocket9.Reversed = True

doc.recompute()
